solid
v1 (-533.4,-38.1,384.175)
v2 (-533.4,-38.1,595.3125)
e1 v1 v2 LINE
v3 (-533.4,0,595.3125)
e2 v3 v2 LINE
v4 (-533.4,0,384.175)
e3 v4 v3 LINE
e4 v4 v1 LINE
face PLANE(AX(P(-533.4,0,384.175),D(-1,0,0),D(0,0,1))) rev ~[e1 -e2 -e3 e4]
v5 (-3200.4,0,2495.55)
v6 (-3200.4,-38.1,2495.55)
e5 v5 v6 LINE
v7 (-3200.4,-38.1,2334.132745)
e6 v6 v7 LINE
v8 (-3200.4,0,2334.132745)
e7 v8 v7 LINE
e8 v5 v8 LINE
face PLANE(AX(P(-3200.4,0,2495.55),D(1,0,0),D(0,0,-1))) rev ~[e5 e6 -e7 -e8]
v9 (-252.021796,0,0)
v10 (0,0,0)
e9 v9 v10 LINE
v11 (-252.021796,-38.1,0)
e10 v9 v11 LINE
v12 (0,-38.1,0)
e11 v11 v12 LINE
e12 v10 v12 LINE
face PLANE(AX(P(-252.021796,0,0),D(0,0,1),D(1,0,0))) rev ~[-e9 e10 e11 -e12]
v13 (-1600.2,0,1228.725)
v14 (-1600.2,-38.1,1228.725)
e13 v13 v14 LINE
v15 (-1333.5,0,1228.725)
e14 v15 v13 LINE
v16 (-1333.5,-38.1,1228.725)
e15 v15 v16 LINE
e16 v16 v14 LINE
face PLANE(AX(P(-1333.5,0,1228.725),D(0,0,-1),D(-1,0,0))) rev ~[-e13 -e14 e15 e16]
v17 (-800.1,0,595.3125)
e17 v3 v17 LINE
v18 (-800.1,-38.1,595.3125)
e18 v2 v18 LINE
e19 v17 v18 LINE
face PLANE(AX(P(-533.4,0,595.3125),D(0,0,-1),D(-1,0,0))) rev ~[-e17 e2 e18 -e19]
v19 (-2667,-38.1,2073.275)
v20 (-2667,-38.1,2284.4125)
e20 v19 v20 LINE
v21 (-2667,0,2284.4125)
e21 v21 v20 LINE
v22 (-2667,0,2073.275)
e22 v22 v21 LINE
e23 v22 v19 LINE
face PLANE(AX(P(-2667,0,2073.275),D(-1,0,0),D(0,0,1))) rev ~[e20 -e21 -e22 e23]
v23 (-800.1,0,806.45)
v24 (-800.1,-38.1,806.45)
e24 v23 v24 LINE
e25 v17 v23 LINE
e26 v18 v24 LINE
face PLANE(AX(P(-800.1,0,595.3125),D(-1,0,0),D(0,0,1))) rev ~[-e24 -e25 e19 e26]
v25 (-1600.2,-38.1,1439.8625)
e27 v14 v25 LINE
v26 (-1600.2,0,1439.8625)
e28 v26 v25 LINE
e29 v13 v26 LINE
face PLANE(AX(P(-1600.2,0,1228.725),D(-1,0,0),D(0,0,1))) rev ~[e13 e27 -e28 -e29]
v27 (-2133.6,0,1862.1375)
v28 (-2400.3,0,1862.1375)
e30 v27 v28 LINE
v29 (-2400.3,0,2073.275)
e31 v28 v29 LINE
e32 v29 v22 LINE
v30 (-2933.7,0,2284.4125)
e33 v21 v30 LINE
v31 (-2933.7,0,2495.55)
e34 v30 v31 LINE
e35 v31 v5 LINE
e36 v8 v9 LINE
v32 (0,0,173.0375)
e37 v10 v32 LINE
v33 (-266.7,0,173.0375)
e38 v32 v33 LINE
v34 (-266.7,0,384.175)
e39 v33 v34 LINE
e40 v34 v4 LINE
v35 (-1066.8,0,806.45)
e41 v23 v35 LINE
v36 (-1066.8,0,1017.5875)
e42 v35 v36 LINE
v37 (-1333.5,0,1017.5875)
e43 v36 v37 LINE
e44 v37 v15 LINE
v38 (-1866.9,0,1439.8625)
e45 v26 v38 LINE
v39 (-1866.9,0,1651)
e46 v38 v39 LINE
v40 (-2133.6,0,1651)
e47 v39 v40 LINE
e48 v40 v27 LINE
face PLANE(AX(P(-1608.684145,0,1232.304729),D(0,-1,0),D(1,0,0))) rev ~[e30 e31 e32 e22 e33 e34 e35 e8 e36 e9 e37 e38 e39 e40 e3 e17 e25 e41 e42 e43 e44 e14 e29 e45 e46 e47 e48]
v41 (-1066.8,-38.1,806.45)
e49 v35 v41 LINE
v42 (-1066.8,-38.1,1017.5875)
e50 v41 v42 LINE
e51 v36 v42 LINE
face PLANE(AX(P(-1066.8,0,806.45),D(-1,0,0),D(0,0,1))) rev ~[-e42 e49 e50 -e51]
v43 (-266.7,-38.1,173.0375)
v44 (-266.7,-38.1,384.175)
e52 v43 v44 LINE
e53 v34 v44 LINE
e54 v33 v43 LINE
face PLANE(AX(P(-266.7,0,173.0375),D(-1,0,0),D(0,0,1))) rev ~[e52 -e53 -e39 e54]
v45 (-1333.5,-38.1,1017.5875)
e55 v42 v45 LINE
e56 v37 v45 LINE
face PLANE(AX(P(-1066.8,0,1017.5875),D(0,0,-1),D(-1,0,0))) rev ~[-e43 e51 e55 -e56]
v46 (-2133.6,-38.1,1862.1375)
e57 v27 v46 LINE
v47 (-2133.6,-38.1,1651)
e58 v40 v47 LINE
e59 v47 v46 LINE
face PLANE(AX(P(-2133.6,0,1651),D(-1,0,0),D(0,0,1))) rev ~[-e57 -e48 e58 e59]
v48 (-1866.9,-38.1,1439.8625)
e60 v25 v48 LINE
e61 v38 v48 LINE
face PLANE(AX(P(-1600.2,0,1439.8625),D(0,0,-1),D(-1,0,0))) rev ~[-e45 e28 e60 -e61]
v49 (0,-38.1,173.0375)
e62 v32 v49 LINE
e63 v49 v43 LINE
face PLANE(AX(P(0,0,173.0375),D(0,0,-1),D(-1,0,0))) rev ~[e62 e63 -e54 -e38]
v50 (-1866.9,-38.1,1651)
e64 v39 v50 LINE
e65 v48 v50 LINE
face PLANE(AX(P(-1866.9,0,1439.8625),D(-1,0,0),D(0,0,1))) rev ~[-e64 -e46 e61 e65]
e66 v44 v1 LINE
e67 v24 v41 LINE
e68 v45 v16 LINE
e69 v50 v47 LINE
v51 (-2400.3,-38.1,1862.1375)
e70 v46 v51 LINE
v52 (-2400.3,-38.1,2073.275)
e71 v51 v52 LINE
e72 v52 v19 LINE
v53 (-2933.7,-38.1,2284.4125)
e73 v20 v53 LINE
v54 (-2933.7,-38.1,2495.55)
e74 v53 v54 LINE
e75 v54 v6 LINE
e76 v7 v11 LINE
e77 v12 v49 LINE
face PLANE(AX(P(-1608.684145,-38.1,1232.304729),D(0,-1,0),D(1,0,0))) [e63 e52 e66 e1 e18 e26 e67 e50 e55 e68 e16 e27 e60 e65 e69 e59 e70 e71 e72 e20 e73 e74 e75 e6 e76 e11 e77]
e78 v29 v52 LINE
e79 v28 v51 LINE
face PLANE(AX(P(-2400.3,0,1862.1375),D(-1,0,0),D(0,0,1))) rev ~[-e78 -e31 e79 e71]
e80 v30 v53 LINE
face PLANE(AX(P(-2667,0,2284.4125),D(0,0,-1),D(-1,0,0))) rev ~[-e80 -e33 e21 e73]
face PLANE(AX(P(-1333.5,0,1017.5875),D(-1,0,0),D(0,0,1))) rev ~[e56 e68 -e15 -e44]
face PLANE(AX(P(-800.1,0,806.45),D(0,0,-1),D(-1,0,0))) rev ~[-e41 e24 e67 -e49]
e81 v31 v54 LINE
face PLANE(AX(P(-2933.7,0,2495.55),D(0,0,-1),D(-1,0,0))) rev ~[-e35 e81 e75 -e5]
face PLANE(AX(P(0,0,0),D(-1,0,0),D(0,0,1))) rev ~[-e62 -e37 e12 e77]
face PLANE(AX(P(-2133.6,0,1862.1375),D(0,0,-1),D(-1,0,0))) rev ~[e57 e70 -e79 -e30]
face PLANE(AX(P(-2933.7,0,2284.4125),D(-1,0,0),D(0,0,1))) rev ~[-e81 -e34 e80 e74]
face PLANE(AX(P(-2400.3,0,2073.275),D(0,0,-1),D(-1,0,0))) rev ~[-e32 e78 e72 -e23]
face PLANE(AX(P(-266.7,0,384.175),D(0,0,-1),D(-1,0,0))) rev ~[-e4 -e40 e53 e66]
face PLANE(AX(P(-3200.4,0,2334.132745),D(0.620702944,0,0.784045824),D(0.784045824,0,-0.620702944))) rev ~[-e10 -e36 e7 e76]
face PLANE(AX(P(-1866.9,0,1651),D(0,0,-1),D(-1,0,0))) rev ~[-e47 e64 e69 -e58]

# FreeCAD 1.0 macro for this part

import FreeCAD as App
import Part
import Sketcher

V = App.Vector
Q = App.Units.Quantity


def add_polygon(sketch, points):
    """Adds a closed chain of lines whose ends are joined by coincident constraints."""
    first, n = sketch.GeometryCount, len(points)
    for a, b in zip(points, points[1:] + points[:1]):
        sketch.addGeometry(Part.LineSegment(App.Vector(*a, 0), App.Vector(*b, 0)), False)
    for i in range(n):
        sketch.addConstraint(Sketcher.Constraint("Coincident", first + i, 2, first + (i + 1) % n, 1))

doc = App.newDocument("Part")
body = doc.addObject("PartDesign::Body", "Body")

sketch1 = body.newObject("Sketcher::SketchObject", "Sketch")
sketch1.AttachmentSupport = (doc.getObject("XZ_Plane"), [""])
sketch1.MapMode = "FlatFace"
add_polygon(sketch1, [(-252, 0), (0, 0), (0, 173), (-267, 173), (-267, 384), (-533, 384), (-533, 595), (-800, 595), (-800, 806), (-1067, 806), (-1067, 1018), (-1334, 1018), (-1334, 1229), (-1600, 1229), (-1600, 1440), (-1867, 1440), (-1867, 1651), (-2134, 1651), (-2134, 1862), (-2400, 1862), (-2400, 2073), (-2667, 2073), (-2667, 2284), (-2934, 2284), (-2934, 2496), (-3200, 2496), (-3200, 2334)])
sketch1.addConstraint([
    Sketcher.Constraint("Horizontal", 0),
    Sketcher.Constraint("Vertical", 1),
    Sketcher.Constraint("Horizontal", 2),
    Sketcher.Constraint("Vertical", 3),
    Sketcher.Constraint("Horizontal", 4),
    Sketcher.Constraint("Vertical", 5),
    Sketcher.Constraint("Horizontal", 6),
    Sketcher.Constraint("Vertical", 7),
    Sketcher.Constraint("Horizontal", 8),
    Sketcher.Constraint("Vertical", 9),
    Sketcher.Constraint("Horizontal", 10),
    Sketcher.Constraint("Vertical", 11),
    Sketcher.Constraint("Horizontal", 12),
    Sketcher.Constraint("Vertical", 13),
    Sketcher.Constraint("Horizontal", 14),
    Sketcher.Constraint("Vertical", 15),
    Sketcher.Constraint("Horizontal", 16),
    Sketcher.Constraint("Vertical", 17),
    Sketcher.Constraint("Horizontal", 18),
    Sketcher.Constraint("Vertical", 19),
    Sketcher.Constraint("Horizontal", 20),
    Sketcher.Constraint("Vertical", 21),
    Sketcher.Constraint("Horizontal", 22),
    Sketcher.Constraint("Vertical", 23),
    Sketcher.Constraint("Horizontal", 24),
    Sketcher.Constraint("Vertical", 25),
    Sketcher.Constraint("Coincident", 0, 2, -1, 1),
    Sketcher.Constraint("Equal", 2, 4),
    Sketcher.Constraint("Equal", 4, 6),
    Sketcher.Constraint("Equal", 6, 8),
    Sketcher.Constraint("Equal", 8, 10),
    Sketcher.Constraint("Equal", 10, 12),
    Sketcher.Constraint("Equal", 12, 14),
    Sketcher.Constraint("Equal", 14, 16),
    Sketcher.Constraint("Equal", 16, 18),
    Sketcher.Constraint("Equal", 18, 20),
    Sketcher.Constraint("Equal", 20, 22),
    Sketcher.Constraint("Equal", 22, 24),
    Sketcher.Constraint("Equal", 3, 5),
    Sketcher.Constraint("Equal", 5, 7),
    Sketcher.Constraint("Equal", 7, 9),
    Sketcher.Constraint("Equal", 9, 11),
    Sketcher.Constraint("Equal", 11, 13),
    Sketcher.Constraint("Equal", 13, 15),
    Sketcher.Constraint("Equal", 15, 17),
    Sketcher.Constraint("Equal", 17, 19),
    Sketcher.Constraint("Equal", 19, 21),
    Sketcher.Constraint("Equal", 21, 23),
    Sketcher.Constraint("DistanceX", 2, 2, 2, 1, Q("10.5 in")),
    Sketcher.Constraint("DistanceY", -1, 1, 15, 2, Q("65 in")),
    Sketcher.Constraint("DistanceY", 1, 1, 1, 2, Q("6.8125 in")),
    Sketcher.Constraint("DistanceX", 0, 1, 0, 2, 252.021796),
    Sketcher.Constraint("DistanceY", 25, 2, 25, 1, 161.417255),
])
pad1 = body.newObject("PartDesign::Pad", "Pad")
pad1.Profile = sketch1
pad1.Length = Q("1.5 in")

doc.recompute()
